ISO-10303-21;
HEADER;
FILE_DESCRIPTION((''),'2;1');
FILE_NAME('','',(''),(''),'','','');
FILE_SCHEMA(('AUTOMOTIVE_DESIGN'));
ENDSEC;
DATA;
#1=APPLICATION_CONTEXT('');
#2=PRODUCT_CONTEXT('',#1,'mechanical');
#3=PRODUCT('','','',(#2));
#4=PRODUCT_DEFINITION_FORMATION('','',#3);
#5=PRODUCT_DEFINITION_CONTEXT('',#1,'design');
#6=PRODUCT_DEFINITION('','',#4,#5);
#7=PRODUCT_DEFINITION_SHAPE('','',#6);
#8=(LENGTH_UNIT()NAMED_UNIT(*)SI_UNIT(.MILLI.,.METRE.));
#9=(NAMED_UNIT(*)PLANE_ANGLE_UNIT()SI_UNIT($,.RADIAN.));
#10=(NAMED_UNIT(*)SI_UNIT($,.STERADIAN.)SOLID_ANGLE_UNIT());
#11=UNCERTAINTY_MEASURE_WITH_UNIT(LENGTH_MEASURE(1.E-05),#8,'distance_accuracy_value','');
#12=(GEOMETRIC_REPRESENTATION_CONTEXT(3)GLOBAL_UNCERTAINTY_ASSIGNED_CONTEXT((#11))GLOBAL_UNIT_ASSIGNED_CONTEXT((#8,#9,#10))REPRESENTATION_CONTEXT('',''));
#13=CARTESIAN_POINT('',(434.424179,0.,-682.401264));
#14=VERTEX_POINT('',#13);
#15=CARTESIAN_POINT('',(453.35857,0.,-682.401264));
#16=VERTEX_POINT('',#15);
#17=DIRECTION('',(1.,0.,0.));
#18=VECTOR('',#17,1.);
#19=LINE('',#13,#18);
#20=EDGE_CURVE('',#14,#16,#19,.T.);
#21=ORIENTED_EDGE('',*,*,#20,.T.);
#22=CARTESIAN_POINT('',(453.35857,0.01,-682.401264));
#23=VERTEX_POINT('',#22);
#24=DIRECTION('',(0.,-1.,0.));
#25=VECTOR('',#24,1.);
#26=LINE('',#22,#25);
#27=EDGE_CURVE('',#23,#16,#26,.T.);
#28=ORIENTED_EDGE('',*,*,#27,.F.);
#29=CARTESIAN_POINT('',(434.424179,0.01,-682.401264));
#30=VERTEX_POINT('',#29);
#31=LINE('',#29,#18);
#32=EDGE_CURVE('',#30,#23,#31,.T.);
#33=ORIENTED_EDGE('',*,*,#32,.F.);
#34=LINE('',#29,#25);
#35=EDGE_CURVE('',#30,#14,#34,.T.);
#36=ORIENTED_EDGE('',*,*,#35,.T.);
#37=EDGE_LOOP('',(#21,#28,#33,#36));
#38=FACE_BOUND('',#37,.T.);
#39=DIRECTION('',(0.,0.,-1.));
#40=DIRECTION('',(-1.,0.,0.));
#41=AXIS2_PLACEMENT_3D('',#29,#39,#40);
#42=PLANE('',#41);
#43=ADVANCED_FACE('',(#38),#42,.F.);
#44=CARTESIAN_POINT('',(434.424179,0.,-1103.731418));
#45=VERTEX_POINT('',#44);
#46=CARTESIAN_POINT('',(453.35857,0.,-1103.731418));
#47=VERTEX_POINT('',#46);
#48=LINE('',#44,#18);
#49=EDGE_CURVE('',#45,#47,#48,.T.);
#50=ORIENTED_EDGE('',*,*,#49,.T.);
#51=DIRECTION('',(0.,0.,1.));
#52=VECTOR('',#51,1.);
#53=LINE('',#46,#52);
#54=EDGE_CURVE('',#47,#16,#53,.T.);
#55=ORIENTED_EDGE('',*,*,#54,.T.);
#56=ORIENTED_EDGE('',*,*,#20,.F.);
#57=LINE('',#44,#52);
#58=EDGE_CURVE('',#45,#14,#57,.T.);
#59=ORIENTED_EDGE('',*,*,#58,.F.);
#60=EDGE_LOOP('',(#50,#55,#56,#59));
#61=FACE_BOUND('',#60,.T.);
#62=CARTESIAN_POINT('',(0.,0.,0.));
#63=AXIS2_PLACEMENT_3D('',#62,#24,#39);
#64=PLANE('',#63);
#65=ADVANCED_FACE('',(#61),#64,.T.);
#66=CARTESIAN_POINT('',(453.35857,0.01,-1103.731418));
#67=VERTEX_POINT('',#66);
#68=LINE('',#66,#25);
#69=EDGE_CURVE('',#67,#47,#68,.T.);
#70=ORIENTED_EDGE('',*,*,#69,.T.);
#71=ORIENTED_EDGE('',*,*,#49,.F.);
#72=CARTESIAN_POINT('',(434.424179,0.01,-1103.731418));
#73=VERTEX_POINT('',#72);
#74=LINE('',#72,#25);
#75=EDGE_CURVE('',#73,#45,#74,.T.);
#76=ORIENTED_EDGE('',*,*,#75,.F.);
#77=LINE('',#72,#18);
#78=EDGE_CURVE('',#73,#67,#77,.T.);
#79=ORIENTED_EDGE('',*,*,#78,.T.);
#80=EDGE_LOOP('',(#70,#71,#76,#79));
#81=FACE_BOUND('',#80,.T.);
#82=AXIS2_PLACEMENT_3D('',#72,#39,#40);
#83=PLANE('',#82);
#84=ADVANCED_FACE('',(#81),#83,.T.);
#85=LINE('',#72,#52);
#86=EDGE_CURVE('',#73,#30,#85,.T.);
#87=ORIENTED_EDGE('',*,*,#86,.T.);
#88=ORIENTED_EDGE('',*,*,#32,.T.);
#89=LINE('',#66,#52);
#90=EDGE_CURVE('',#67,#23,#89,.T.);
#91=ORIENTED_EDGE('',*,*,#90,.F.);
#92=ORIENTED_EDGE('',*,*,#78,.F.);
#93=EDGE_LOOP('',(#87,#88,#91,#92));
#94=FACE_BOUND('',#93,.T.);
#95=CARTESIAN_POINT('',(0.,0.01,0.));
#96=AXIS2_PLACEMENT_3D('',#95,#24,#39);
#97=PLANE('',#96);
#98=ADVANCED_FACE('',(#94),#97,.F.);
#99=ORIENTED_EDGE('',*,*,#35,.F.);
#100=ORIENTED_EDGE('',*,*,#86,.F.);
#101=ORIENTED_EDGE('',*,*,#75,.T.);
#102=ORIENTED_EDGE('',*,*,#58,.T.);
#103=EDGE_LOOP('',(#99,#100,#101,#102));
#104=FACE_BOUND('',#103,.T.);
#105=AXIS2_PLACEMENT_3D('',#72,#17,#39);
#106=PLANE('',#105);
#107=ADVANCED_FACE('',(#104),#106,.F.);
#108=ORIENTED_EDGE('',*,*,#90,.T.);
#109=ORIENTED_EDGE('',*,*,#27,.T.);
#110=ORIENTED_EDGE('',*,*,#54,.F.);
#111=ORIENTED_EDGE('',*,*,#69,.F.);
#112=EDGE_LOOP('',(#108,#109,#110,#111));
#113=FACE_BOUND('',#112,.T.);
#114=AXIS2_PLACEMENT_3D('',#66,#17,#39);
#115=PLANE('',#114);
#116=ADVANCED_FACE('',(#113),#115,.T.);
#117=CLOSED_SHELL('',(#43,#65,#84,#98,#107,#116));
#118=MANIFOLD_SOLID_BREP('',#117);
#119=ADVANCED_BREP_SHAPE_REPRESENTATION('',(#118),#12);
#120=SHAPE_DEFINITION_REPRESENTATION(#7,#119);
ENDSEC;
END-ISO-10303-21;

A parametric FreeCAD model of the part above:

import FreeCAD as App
import Part
import Sketcher
Q = App.Units.Quantity

doc = App.newDocument("Part")
body = doc.addObject("PartDesign::Body", "Body")

sketch1 = body.newObject("Sketcher::SketchObject", "Sketch")
sketch1.AttachmentSupport = (doc.getObject("XZ_Plane"), [""])
sketch1.MapMode = "FlatFace"
sketch1.addGeometry([
    Part.LineSegment(App.Vector(434, -1104, 0), App.Vector(434, -682, 0)),
    Part.LineSegment(App.Vector(434, -682, 0), App.Vector(453, -682, 0)),
    Part.LineSegment(App.Vector(453, -682, 0), App.Vector(453, -1104, 0)),
    Part.LineSegment(App.Vector(453, -1104, 0), App.Vector(434, -1104, 0)),
], False)
sketch1.addConstraint([
    Sketcher.Constraint("Coincident", 0, 2, 1, 1),
    Sketcher.Constraint("Coincident", 1, 2, 2, 1),
    Sketcher.Constraint("Coincident", 2, 2, 3, 1),
    Sketcher.Constraint("Coincident", 3, 2, 0, 1),
    Sketcher.Constraint("Vertical", 0),
    Sketcher.Constraint("Horizontal", 1),
    Sketcher.Constraint("Vertical", 2),
    Sketcher.Constraint("Horizontal", 3),
    Sketcher.Constraint("DistanceX", 1, 1, 1, 2, Q("18.934391 mm")),
    Sketcher.Constraint("DistanceY", 0, 1, 0, 2, Q("421.330154 mm")),
    Sketcher.Constraint("DistanceX", -1, 1, 0, 2, Q("434.424179 mm")),
    Sketcher.Constraint("DistanceY", 0, 2, -1, 1, Q("682.401264 mm")),
])
pad1 = body.newObject("PartDesign::Pad", "Pad")
pad1.Profile = sketch1
pad1.Length = 0.01
pad1.Reversed = True

doc.recompute()
